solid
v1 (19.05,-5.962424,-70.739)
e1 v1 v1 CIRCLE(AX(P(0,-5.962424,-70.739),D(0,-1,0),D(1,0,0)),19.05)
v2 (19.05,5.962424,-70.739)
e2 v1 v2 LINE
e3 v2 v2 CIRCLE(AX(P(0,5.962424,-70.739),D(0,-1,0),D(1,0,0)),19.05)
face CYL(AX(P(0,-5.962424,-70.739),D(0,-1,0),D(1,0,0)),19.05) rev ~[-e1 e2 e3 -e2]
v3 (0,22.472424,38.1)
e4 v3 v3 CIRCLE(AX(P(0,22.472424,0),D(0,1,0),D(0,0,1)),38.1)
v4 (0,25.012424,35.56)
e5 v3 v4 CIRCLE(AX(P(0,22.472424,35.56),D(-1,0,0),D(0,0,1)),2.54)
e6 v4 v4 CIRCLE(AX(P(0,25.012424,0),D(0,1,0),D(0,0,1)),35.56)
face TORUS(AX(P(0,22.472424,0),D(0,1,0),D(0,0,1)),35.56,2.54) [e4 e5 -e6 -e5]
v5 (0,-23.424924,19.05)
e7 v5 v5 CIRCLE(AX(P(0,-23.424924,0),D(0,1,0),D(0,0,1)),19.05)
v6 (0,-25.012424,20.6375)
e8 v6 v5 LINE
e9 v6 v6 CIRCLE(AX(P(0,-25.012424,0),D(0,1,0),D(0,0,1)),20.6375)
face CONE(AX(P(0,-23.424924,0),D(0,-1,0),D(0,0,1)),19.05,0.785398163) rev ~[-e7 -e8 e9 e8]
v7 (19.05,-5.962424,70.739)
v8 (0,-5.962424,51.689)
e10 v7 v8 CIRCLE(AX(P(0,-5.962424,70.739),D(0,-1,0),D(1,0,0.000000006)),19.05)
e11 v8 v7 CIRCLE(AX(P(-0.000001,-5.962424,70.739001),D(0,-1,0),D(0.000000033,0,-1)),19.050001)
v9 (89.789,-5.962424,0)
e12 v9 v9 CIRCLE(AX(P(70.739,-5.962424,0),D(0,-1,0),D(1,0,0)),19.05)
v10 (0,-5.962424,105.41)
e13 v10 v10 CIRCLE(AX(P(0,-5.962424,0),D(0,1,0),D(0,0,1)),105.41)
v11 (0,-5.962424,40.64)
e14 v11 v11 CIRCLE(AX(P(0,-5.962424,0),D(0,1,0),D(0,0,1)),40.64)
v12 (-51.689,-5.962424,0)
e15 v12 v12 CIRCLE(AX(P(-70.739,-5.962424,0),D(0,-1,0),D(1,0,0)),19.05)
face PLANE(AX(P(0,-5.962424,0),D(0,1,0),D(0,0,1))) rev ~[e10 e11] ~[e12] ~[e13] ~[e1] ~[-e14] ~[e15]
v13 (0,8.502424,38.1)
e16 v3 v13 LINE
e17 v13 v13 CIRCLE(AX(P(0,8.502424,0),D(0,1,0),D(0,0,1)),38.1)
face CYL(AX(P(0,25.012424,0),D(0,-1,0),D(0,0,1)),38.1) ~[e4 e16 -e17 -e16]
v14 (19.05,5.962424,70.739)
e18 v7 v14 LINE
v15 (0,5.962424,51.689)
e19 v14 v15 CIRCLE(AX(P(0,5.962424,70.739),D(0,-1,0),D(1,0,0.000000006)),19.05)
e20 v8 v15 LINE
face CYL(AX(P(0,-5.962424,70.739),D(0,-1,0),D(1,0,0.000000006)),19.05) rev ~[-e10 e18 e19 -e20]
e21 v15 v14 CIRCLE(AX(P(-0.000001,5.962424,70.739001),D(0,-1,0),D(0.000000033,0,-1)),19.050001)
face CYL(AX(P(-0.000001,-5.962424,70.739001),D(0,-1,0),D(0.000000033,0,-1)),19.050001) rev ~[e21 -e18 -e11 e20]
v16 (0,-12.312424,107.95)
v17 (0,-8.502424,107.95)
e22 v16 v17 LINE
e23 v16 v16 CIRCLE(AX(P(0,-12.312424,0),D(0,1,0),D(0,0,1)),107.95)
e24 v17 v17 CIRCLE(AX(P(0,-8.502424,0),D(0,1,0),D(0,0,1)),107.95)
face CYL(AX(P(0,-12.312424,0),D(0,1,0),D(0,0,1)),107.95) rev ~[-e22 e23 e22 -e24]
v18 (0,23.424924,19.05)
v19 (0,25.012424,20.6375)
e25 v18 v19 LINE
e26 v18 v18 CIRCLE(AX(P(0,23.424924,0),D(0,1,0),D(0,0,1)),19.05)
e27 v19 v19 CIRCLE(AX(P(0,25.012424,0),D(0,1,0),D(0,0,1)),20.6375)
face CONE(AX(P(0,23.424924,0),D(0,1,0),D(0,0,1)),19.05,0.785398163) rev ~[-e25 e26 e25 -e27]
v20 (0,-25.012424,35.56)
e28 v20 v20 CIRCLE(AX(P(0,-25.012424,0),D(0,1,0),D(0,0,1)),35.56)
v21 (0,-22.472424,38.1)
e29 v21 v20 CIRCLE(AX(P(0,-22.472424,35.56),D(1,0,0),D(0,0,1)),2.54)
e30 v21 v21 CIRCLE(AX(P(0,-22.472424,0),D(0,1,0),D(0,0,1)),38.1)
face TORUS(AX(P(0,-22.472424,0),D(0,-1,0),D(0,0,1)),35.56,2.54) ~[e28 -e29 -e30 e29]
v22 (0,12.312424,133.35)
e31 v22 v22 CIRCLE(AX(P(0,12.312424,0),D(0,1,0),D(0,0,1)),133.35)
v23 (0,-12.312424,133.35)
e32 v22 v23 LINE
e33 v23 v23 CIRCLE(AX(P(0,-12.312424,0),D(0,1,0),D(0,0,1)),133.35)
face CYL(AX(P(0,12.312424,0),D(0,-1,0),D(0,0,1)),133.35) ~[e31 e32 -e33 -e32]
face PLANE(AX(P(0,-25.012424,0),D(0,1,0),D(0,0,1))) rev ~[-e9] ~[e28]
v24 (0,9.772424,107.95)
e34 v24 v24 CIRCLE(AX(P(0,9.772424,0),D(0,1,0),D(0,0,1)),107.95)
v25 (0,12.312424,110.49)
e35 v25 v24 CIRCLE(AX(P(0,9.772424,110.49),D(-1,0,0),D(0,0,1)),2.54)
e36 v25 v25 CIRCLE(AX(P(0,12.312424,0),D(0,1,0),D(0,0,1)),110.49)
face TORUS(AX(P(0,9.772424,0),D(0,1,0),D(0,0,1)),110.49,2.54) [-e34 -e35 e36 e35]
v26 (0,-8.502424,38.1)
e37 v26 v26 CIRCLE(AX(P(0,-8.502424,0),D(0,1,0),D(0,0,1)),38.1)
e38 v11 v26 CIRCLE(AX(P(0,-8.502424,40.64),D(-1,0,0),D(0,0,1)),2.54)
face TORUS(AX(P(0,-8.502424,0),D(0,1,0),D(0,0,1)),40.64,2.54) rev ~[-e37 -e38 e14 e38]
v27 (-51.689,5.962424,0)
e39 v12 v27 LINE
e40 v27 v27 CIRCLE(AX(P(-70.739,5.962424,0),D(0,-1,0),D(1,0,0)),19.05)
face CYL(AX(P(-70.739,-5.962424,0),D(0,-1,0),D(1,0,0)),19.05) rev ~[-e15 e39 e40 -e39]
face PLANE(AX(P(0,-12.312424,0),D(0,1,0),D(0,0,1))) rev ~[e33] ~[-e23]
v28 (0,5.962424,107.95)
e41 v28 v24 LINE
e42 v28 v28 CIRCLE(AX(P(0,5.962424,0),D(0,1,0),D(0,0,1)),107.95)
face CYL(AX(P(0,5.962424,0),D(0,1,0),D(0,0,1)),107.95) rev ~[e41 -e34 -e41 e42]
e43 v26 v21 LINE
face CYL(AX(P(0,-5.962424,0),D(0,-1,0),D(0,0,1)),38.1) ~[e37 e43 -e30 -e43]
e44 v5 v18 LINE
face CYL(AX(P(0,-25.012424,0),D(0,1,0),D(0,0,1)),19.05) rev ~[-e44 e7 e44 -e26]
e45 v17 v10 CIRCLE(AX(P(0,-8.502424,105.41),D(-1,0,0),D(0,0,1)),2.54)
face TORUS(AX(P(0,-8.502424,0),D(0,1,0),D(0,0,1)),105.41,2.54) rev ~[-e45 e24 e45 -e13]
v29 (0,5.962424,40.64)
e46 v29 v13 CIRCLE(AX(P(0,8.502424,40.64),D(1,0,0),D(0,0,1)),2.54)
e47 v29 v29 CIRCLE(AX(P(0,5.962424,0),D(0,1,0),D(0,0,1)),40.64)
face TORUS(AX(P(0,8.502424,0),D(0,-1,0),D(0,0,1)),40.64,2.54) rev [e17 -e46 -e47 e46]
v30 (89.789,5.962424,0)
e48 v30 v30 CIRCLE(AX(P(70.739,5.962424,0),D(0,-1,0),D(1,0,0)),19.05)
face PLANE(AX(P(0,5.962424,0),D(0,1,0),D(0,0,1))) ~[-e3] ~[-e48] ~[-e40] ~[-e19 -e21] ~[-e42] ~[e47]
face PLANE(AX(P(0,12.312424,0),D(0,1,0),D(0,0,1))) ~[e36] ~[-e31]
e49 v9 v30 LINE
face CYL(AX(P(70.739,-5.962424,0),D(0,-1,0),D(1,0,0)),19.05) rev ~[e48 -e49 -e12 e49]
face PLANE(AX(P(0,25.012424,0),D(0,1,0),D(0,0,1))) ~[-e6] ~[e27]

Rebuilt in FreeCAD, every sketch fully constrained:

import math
import FreeCAD as App
import Part
import Sketcher

V = App.Vector
Q = App.Units.Quantity


def edges_at(feature, points):
    """Names of the edges that pass closest to the given points."""
    edges = feature.Shape.Edges
    near = lambda p: min(range(len(edges)), key=lambda i: edges[i].distToShape(Part.Vertex(*p))[0])
    return sorted({f"Edge{near(p) + 1}" for p in points})


def add_polygon(sketch, points):
    """Adds a closed chain of lines whose ends are joined by coincident constraints."""
    first, n = sketch.GeometryCount, len(points)
    for a, b in zip(points, points[1:] + points[:1]):
        sketch.addGeometry(Part.LineSegment(App.Vector(*a, 0), App.Vector(*b, 0)), False)
    for i in range(n):
        sketch.addConstraint(Sketcher.Constraint("Coincident", first + i, 2, first + (i + 1) % n, 1))

doc = App.newDocument("Part")
body = doc.addObject("PartDesign::Body", "Body")

# Sketch on YZ plane
sketch1 = body.newObject("Sketcher::SketchObject", "Sketch")
sketch1.AttachmentSupport = (doc.getObject("YZ_Plane"), [""])
sketch1.MapMode = "FlatFace"
add_polygon(sketch1, [(-12, 133), (-12, 108), (-6, 108), (-6, 38), (-25, 38), (-25, 19), (25, 19), (25, 38), (6, 38), (6, 108), (12, 108), (12, 133)])  # lines 0-11
sketch1.addConstraint(Sketcher.Constraint("Vertical", 0))
sketch1.addConstraint(Sketcher.Constraint("Horizontal", 1))
sketch1.addConstraint(Sketcher.Constraint("Vertical", 2))
sketch1.addConstraint(Sketcher.Constraint("Horizontal", 3))
sketch1.addConstraint(Sketcher.Constraint("Vertical", 4))
sketch1.addConstraint(Sketcher.Constraint("Horizontal", 5))
sketch1.addConstraint(Sketcher.Constraint("Vertical", 6))
sketch1.addConstraint(Sketcher.Constraint("Horizontal", 7))
sketch1.addConstraint(Sketcher.Constraint("Vertical", 8))
sketch1.addConstraint(Sketcher.Constraint("Horizontal", 9))
sketch1.addConstraint(Sketcher.Constraint("Vertical", 10))
sketch1.addConstraint(Sketcher.Constraint("Horizontal", 11))
sketch1.addConstraint(Sketcher.Constraint("Symmetric", 3, 2, 6, 2, -2))
sketch1.addConstraint(Sketcher.Constraint("Symmetric", 1, 2, 8, 2, -2))
sketch1.addConstraint(Sketcher.Constraint("Equal", 1, 9))
sketch1.addConstraint(Sketcher.Constraint("Equal", 7, 4))
sketch1.addConstraint(Sketcher.Constraint("DistanceY", 0, 2, 0, 1, Q("1 in")))
sketch1.addConstraint(Sketcher.Constraint("DistanceX", 1, 1, 1, 2, Q("0.25 in")))
sketch1.addConstraint(Sketcher.Constraint("DistanceX", 3, 2, 3, 1, Q("0.75 in")))
sketch1.addConstraint(Sketcher.Constraint("DistanceY", 2, 2, 2, 1, Q("2.75 in")))
sketch1.addConstraint(Sketcher.Constraint("DistanceY", -1, 1, 2, 2, Q("1.5 in")))
sketch1.addConstraint(Sketcher.Constraint("DistanceX", 11, 2, 11, 1, Q("24.624848 mm")))
revolution = body.newObject("PartDesign::Revolution", "Revolution")
revolution.Profile = sketch1
revolution.ReferenceAxis = (sketch1, ["H_Axis"])
revolution.Angle = 360

# Sketch on XZ plane
sketch2 = body.newObject("Sketcher::SketchObject", "Sketch001")
sketch2.AttachmentSupport = (doc.getObject("XZ_Plane"), [""])
sketch2.MapMode = "FlatFace"
sketch2.AttachmentOffset = App.Placement(V(0, 0, 5.962424), App.Rotation())
sketch2.addGeometry(Part.ArcOfCircle(Part.Circle(V(0, 71, 0), V(0, 0, 1), 19), math.radians(0), math.radians(270)), False)
sketch2.addGeometry(Part.ArcOfCircle(Part.Circle(V(0, 71, 0), V(0, 0, 1), 19), math.radians(-90), math.radians(0)), False)
sketch2.addGeometry(Part.Circle(V(71, 0, 0), V(0, 0, 1), 19), False)
sketch2.addGeometry(Part.Circle(V(0, -71, 0), V(0, 0, 1), 19), False)
sketch2.addGeometry(Part.Circle(V(-71, 0, 0), V(0, 0, 1), 19), False)
sketch2.addConstraint(Sketcher.Constraint("Tangent", 0, 1, 1, 2))
sketch2.addConstraint(Sketcher.Constraint("Coincident", 1, 1, 0, 2))
sketch2.addConstraint(Sketcher.Constraint("Equal", 1, 2))
sketch2.addConstraint(Sketcher.Constraint("Equal", 2, 3))
sketch2.addConstraint(Sketcher.Constraint("Equal", 3, 4))
sketch2.addConstraint(Sketcher.Constraint("Symmetric", 0, 3, 3, 3, -1, 1))
sketch2.addConstraint(Sketcher.Constraint("Symmetric", 2, 3, 4, 3, -1, 1))
sketch2.addConstraint(Sketcher.Constraint("PointOnObject", 0, 3, -2))
sketch2.addConstraint(Sketcher.Constraint("PointOnObject", 2, 3, -1))
sketch2.addConstraint(Sketcher.Constraint("PointOnObject", 1, 1, -2))
sketch2.addConstraint(Sketcher.Constraint("Horizontal", 1, 3, 0, 1))
sketch2.addConstraint(Sketcher.Constraint("Diameter", 2, Q("1.5 in")))
sketch2.addConstraint(Sketcher.Constraint("DistanceY", 3, 3, 0, 3, Q("5.57 in")))
sketch2.addConstraint(Sketcher.Constraint("DistanceX", 4, 3, 2, 3, Q("5.57 in")))
pocket1 = body.newObject("PartDesign::Pocket", "Pocket")
pocket1.Profile = sketch2
pocket1.Length = Q("1 in")
doc.recompute()

fillet = body.newObject("PartDesign::Fillet", "Fillet")
fillet.Base = (pocket1, edges_at(pocket1, [
    (0, -25.012, -38.1),
    (0, -5.962, -38.1),
    (0, -5.962, -107.95),
    (0, 25.012, -38.1),
    (0, 5.962, -38.1),
    (0, 12.312, -107.95),
]))
fillet.Radius = Q("0.1 in")
doc.recompute()

chamfer = body.newObject("PartDesign::Chamfer", "Chamfer")
chamfer.Base = (fillet, edges_at(fillet, [(0, -25.012, -19.05), (0, 25.012, -19.05)]))
chamfer.Size = Q("0.0625 in")

doc.recompute()
